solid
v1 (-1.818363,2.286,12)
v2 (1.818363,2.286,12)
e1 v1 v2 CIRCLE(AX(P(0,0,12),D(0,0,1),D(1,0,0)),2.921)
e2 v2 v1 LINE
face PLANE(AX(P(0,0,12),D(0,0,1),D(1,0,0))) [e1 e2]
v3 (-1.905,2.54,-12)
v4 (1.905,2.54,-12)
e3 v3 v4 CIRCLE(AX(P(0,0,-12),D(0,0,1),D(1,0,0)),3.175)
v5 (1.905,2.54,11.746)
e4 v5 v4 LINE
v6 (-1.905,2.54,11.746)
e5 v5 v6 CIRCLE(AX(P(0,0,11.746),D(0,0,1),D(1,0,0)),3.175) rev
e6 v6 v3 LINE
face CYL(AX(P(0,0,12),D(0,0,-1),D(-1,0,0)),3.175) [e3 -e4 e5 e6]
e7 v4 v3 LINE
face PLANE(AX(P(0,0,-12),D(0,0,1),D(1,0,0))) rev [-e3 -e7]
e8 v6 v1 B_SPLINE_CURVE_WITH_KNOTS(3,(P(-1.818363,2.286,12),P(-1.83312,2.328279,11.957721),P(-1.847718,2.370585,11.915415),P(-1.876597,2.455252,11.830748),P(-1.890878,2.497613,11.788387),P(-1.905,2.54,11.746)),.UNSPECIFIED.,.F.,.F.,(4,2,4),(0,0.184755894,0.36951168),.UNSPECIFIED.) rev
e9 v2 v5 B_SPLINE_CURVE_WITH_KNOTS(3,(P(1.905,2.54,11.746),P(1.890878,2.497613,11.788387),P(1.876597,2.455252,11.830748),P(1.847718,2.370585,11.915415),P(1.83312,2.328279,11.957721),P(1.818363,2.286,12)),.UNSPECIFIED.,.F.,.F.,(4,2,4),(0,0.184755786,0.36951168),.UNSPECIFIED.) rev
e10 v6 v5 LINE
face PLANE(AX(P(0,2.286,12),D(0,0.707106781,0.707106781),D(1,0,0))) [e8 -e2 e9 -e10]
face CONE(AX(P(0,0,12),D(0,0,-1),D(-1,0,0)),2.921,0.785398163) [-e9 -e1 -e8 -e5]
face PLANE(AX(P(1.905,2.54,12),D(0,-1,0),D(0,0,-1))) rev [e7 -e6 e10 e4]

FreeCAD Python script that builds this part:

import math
import FreeCAD as App
import Part
import Sketcher

V = App.Vector
Q = App.Units.Quantity


def edges_at(feature, points):
    """Names of the edges that pass closest to the given points."""
    edges = feature.Shape.Edges
    near = lambda p: min(range(len(edges)), key=lambda i: edges[i].distToShape(Part.Vertex(*p))[0])
    return sorted({f"Edge{near(p) + 1}" for p in points})

doc = App.newDocument("Part")
body = doc.addObject("PartDesign::Body", "Body")

# Sketch on XY plane
sketch1 = body.newObject("Sketcher::SketchObject", "Sketch")
sketch1.AttachmentSupport = (doc.getObject("XY_Plane"), [""])
sketch1.MapMode = "FlatFace"
sketch1.addGeometry([
    Part.LineSegment(V(1.9, 2.5, 0), V(-1.9, 2.5, 0)),
    Part.ArcOfCircle(Part.Circle(V(0, 0, 0), V(0, 0, 1), 3.2), math.radians(127), math.radians(413)),
], False)
sketch1.addConstraint([
    Sketcher.Constraint("Coincident", 0, 1, 1, 2),
    Sketcher.Constraint("Coincident", 1, 1, 0, 2),
    Sketcher.Constraint("Horizontal", 0),
    Sketcher.Constraint("Coincident", 1, 3, -1, 1),
    Sketcher.Constraint("Radius", 1, Q("0.125 in")),
    Sketcher.Constraint("DistanceX", 0, 2, 0, 1, Q("0.15 in")),
])
pad1 = body.newObject("PartDesign::Pad", "Pad")
pad1.Profile = sketch1
pad1.Length = 24
pad1.Midplane = True
doc.recompute()

chamfer = body.newObject("PartDesign::Chamfer", "Chamfer")
chamfer.Base = (pad1, edges_at(pad1, [(0, -3.175, 12), (0, 2.54, 12)]))
chamfer.Size = Q("0.01 in")

doc.recompute()
